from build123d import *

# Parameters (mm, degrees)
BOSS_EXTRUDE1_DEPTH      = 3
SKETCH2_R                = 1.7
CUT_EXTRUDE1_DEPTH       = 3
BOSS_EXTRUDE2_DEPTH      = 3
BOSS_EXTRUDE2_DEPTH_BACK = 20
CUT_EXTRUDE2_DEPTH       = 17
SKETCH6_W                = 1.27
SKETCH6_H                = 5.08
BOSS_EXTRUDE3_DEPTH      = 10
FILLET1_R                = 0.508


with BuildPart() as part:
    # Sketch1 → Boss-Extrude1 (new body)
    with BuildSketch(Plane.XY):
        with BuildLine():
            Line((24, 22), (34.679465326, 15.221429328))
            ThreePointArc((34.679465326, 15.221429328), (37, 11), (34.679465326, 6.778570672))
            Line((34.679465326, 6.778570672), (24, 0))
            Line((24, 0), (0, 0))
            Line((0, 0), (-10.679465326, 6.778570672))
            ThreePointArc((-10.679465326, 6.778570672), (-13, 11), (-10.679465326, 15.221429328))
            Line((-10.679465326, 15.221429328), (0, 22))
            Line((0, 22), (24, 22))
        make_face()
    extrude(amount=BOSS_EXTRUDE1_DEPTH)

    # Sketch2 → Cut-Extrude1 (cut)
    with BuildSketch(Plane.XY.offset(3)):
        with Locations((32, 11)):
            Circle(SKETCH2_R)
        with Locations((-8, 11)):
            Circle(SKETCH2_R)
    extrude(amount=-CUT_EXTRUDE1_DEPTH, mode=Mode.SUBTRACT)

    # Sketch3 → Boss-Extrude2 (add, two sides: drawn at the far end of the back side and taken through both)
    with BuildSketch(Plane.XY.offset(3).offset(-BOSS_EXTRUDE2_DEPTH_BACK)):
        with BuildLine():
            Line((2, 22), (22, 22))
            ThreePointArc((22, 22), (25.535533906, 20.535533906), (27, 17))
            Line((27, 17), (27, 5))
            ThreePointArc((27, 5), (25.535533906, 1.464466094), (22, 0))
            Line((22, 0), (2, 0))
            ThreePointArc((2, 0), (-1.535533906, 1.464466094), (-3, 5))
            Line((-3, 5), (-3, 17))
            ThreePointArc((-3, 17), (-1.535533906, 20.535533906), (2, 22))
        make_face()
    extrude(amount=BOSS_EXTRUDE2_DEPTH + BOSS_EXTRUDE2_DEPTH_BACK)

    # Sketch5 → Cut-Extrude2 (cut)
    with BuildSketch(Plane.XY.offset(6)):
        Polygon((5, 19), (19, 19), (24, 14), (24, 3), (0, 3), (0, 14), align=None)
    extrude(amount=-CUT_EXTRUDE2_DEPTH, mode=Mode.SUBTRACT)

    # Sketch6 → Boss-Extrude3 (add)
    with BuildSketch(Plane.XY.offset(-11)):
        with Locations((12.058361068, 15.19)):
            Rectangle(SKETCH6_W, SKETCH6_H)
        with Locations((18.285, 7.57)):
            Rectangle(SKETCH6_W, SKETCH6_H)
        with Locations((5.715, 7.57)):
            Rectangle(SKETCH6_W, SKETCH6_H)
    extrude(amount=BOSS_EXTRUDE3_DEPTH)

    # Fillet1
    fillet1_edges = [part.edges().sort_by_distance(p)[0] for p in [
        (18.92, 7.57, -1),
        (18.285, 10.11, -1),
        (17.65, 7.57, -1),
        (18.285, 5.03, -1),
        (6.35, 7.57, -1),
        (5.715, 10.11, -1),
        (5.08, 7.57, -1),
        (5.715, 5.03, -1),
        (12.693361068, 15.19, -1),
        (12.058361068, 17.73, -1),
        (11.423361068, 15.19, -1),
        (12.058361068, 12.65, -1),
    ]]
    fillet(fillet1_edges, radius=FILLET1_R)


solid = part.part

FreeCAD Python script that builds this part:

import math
import FreeCAD as App
import Part
import Sketcher

V = App.Vector
Q = App.Units.Quantity


def edges_at(feature, points):
    """Names of the edges that pass closest to the given points."""
    edges = feature.Shape.Edges
    near = lambda p: min(range(len(edges)), key=lambda i: edges[i].distToShape(Part.Vertex(*p))[0])
    return sorted({f"Edge{near(p) + 1}" for p in points})


def add_polygon(sketch, points):
    """Adds a closed chain of lines whose ends are joined by coincident constraints."""
    first, n = sketch.GeometryCount, len(points)
    for a, b in zip(points, points[1:] + points[:1]):
        sketch.addGeometry(Part.LineSegment(App.Vector(*a, 0), App.Vector(*b, 0)), False)
    for i in range(n):
        sketch.addConstraint(Sketcher.Constraint("Coincident", first + i, 2, first + (i + 1) % n, 1))

doc = App.newDocument("Part")
params = doc.addObject("Spreadsheet::Sheet", "Params")
for row, (alias, value) in enumerate([
    ("sketch1_radius", "5 mm"),
    ("sketch1_width", "24 mm"),
    ("pad1_length", "3 mm"),
    ("sketch2_diameter", "3.4 mm"),
    ("pocket1_length", "3 mm"),
    ("sketch3_radius", "5 mm"),
    ("sketch3_width", "20 mm"),
    ("sketch3_height", "12 mm"),
    ("pad2_length", "3 mm"),
    ("pad2_length2", "20 mm"),
    ("sketch4_width", "14 mm"),
    ("sketch4_width2", "24 mm"),
    ("sketch4_height", "11 mm"),
    ("pocket2_length", "17 mm"),
    ("sketch5_width", "1.27 mm"),
    ("sketch5_height", "5.08 mm"),
    ("pad3_length", "10 mm"),
    ("fillet_radius", "0.508 mm"),
], start=1):
    params.set(f"A{row}", alias)
    params.set(f"B{row}", "=" + value)
    params.setAlias(f"B{row}", alias)

body = doc.addObject("PartDesign::Body", "Body")

# Sketch on XY plane
sketch1 = doc.addObject("Sketcher::SketchObject", "Sketch")
body.addObject(sketch1)
sketch1.AttachmentSupport = (doc.XY_Plane, [""])
sketch1.MapMode = "FlatFace"
sketch1.addGeometry(Part.LineSegment(V(35, 15, 0), V(24, 22, 0)), False)
sketch1.addGeometry(Part.LineSegment(V(24, 22, 0), V(0, 22, 0)), False)
sketch1.addGeometry(Part.LineSegment(V(0, 22, 0), V(-11, 15, 0)), False)
sketch1.addGeometry(Part.ArcOfCircle(Part.Circle(V(-8, 11, 0), V(0, 0, 1), 5), math.radians(122), math.radians(238)), False)
sketch1.addGeometry(Part.LineSegment(V(-11, 7, 0), V(0, 0, 0)), False)
sketch1.addGeometry(Part.LineSegment(V(0, 0, 0), V(24, 0, 0)), False)
sketch1.addGeometry(Part.LineSegment(V(24, 0, 0), V(35, 7, 0)), False)
sketch1.addGeometry(Part.ArcOfCircle(Part.Circle(V(32, 11, 0), V(0, 0, 1), 5), math.radians(-58), math.radians(58)), False)
sketch1.addConstraint(Sketcher.Constraint("Coincident", 0, 2, 1, 1))
sketch1.addConstraint(Sketcher.Constraint("Coincident", 1, 2, 2, 1))
sketch1.addConstraint(Sketcher.Constraint("Tangent", 2, 2, 3, 1))
sketch1.addConstraint(Sketcher.Constraint("Tangent", 3, 2, 4, 1))
sketch1.addConstraint(Sketcher.Constraint("Coincident", 4, 2, 5, 1))
sketch1.addConstraint(Sketcher.Constraint("Coincident", 5, 2, 6, 1))
sketch1.addConstraint(Sketcher.Constraint("Tangent", 6, 2, 7, 1))
sketch1.addConstraint(Sketcher.Constraint("Tangent", 7, 2, 0, 1))
sketch1.addConstraint(Sketcher.Constraint("Horizontal", 1))
sketch1.addConstraint(Sketcher.Constraint("Horizontal", 5))
sketch1.addConstraint(Sketcher.Constraint("Coincident", 4, 2, -1, 1))
sketch1.addConstraint(Sketcher.Constraint("Equal", 3, 7))
sketch1.addConstraint(Sketcher.Constraint("PointOnObject", 1, 2, -2))
sketch1.addConstraint(Sketcher.Constraint("Parallel", 0, 4))
sketch1.addConstraint(Sketcher.Constraint("Parallel", 2, 6))
sketch1.addConstraint(Sketcher.Constraint("Horizontal", 3, 3, 7, 3))
sketch1.addConstraint(Sketcher.Constraint("Horizontal", 3, 2, 6, 2))
sketch1.addConstraint(Sketcher.Constraint("Radius", 3, Q("5 mm")))
sketch1.addConstraint(Sketcher.Constraint("DistanceX", 1, 2, 1, 1, Q("24 mm")))
sketch1.addConstraint(Sketcher.Constraint("DistanceX", 3, 3, -1, 1, Q("8 mm")))
sketch1.addConstraint(Sketcher.Constraint("DistanceY", -1, 1, 3, 3, Q("11 mm")))
sketch1.setExpression("Constraints[17]", "Params.sketch1_radius")
sketch1.setExpression("Constraints[18]", "Params.sketch1_width")
pad1 = doc.addObject("PartDesign::Pad", "Pad")
body.addObject(pad1)
pad1.Profile = sketch1
pad1.setExpression("Length", "Params.pad1_length")

# Sketch on XY plane
sketch2 = doc.addObject("Sketcher::SketchObject", "Sketch001")
body.addObject(sketch2)
sketch2.AttachmentSupport = (doc.XY_Plane, [""])
sketch2.MapMode = "FlatFace"
sketch2.AttachmentOffset = App.Placement(V(0, 0, 3), App.Rotation())
sketch2.addGeometry(Part.Circle(V(32, 11, 0), V(0, 0, 1), 1.7), False)
sketch2.addGeometry(Part.Circle(V(-8, 11, 0), V(0, 0, 1), 1.7), False)
sketch2.addConstraint(Sketcher.Constraint("Equal", 0, 1))
sketch2.addConstraint(Sketcher.Constraint("Horizontal", 0, 3, 1, 3))
sketch2.addConstraint(Sketcher.Constraint("Diameter", 0, Q("3.4 mm")))
sketch2.addConstraint(Sketcher.Constraint("DistanceX", -1, 1, 0, 3, Q("32 mm")))
sketch2.addConstraint(Sketcher.Constraint("DistanceY", -1, 1, 0, 3, Q("11 mm")))
sketch2.addConstraint(Sketcher.Constraint("DistanceX", 1, 3, -1, 1, Q("8 mm")))
sketch2.setExpression("Constraints[2]", "Params.sketch2_diameter")
pocket1 = doc.addObject("PartDesign::Pocket", "Pocket")
body.addObject(pocket1)
pocket1.Profile = sketch2
pocket1.setExpression("Length", "Params.pocket1_length")

# Sketch on XY plane
sketch3 = doc.addObject("Sketcher::SketchObject", "Sketch002")
body.addObject(sketch3)
sketch3.AttachmentSupport = (doc.XY_Plane, [""])
sketch3.MapMode = "FlatFace"
sketch3.AttachmentOffset = App.Placement(V(0, 0, 3), App.Rotation())
sketch3.addGeometry(Part.LineSegment(V(22, 22, 0), V(2, 22, 0)), False)
sketch3.addGeometry(Part.ArcOfCircle(Part.Circle(V(2, 17, 0), V(0, 0, 1), 5), math.radians(90), math.radians(180)), False)
sketch3.addGeometry(Part.LineSegment(V(-3, 17, 0), V(-3, 5, 0)), False)
sketch3.addGeometry(Part.ArcOfCircle(Part.Circle(V(2, 5, 0), V(0, 0, 1), 5), math.radians(180), math.radians(270)), False)
sketch3.addGeometry(Part.LineSegment(V(2, 0, 0), V(22, 0, 0)), False)
sketch3.addGeometry(Part.ArcOfCircle(Part.Circle(V(22, 5, 0), V(0, 0, 1), 5), math.radians(-90), math.radians(0)), False)
sketch3.addGeometry(Part.LineSegment(V(27, 5, 0), V(27, 17, 0)), False)
sketch3.addGeometry(Part.ArcOfCircle(Part.Circle(V(22, 17, 0), V(0, 0, 1), 5), math.radians(0), math.radians(90)), False)
sketch3.addConstraint(Sketcher.Constraint("Tangent", 0, 2, 1, 1))
sketch3.addConstraint(Sketcher.Constraint("Tangent", 1, 2, 2, 1))
sketch3.addConstraint(Sketcher.Constraint("Tangent", 2, 2, 3, 1))
sketch3.addConstraint(Sketcher.Constraint("Tangent", 3, 2, 4, 1))
sketch3.addConstraint(Sketcher.Constraint("Tangent", 4, 2, 5, 1))
sketch3.addConstraint(Sketcher.Constraint("Tangent", 5, 2, 6, 1))
sketch3.addConstraint(Sketcher.Constraint("Tangent", 6, 2, 7, 1))
sketch3.addConstraint(Sketcher.Constraint("Tangent", 7, 2, 0, 1))
sketch3.addConstraint(Sketcher.Constraint("Horizontal", 0))
sketch3.addConstraint(Sketcher.Constraint("Vertical", 2))
sketch3.addConstraint(Sketcher.Constraint("Horizontal", 4))
sketch3.addConstraint(Sketcher.Constraint("Vertical", 6))
sketch3.addConstraint(Sketcher.Constraint("Equal", 1, 3))
sketch3.addConstraint(Sketcher.Constraint("Equal", 3, 5))
sketch3.addConstraint(Sketcher.Constraint("Equal", 5, 7))
sketch3.addConstraint(Sketcher.Constraint("PointOnObject", 3, 2, -1))
sketch3.addConstraint(Sketcher.Constraint("Radius", 1, Q("5 mm")))
sketch3.addConstraint(Sketcher.Constraint("DistanceX", 0, 2, 0, 1, Q("20 mm")))
sketch3.addConstraint(Sketcher.Constraint("DistanceY", 2, 2, 2, 1, Q("12 mm")))
sketch3.addConstraint(Sketcher.Constraint("DistanceX", -1, 1, 1, 3, Q("2 mm")))
sketch3.setExpression("Constraints[16]", "Params.sketch3_radius")
sketch3.setExpression("Constraints[17]", "Params.sketch3_width")
sketch3.setExpression("Constraints[18]", "Params.sketch3_height")
pad2 = doc.addObject("PartDesign::Pad", "Pad001")
body.addObject(pad2)
pad2.Profile = sketch3
pad2.Type = "TwoLengths"
pad2.setExpression("Length", "Params.pad2_length")
pad2.setExpression("Length2", "Params.pad2_length2")

# Sketch on XY plane
sketch4 = doc.addObject("Sketcher::SketchObject", "Sketch003")
body.addObject(sketch4)
sketch4.AttachmentSupport = (doc.XY_Plane, [""])
sketch4.MapMode = "FlatFace"
sketch4.AttachmentOffset = App.Placement(V(0, 0, 6), App.Rotation())
add_polygon(sketch4, [(19, 19), (5, 19), (0, 14), (0, 3), (24, 3), (24, 14)])  # lines 0-5
sketch4.addConstraint(Sketcher.Constraint("Horizontal", 0))
sketch4.addConstraint(Sketcher.Constraint("Vertical", 2))
sketch4.addConstraint(Sketcher.Constraint("Horizontal", 3))
sketch4.addConstraint(Sketcher.Constraint("Vertical", 4))
sketch4.addConstraint(Sketcher.Constraint("PointOnObject", 1, 2, -2))
sketch4.addConstraint(Sketcher.Constraint("Perpendicular", 1, 5))
sketch4.addConstraint(Sketcher.Constraint("Horizontal", 1, 2, 4, 2))
sketch4.addConstraint(Sketcher.Constraint("Equal", 1, 5))
sketch4.addConstraint(Sketcher.Constraint("DistanceX", 0, 2, 0, 1, Q("14 mm")))
sketch4.addConstraint(Sketcher.Constraint("DistanceX", 3, 1, 3, 2, Q("24 mm")))
sketch4.addConstraint(Sketcher.Constraint("DistanceY", 2, 2, 2, 1, Q("11 mm")))
sketch4.addConstraint(Sketcher.Constraint("DistanceY", -1, 1, 0, 2, Q("19 mm")))
sketch4.setExpression("Constraints[14]", "Params.sketch4_width")
sketch4.setExpression("Constraints[15]", "Params.sketch4_width2")
sketch4.setExpression("Constraints[16]", "Params.sketch4_height")
pocket2 = doc.addObject("PartDesign::Pocket", "Pocket001")
body.addObject(pocket2)
pocket2.Profile = sketch4
pocket2.setExpression("Length", "Params.pocket2_length")

# Sketch on XY plane
sketch5 = doc.addObject("Sketcher::SketchObject", "Sketch004")
body.addObject(sketch5)
sketch5.AttachmentSupport = (doc.XY_Plane, [""])
sketch5.MapMode = "FlatFace"
sketch5.AttachmentOffset = App.Placement(V(0, 0, -11), App.Rotation())
add_polygon(sketch5, [(11.4, 17.7), (11.4, 12.7), (12.7, 12.7), (12.7, 17.7)])  # lines 0-3
add_polygon(sketch5, [(17.6, 10.1), (17.6, 5), (18.9, 5), (18.9, 10.1)])  # lines 4-7
add_polygon(sketch5, [(5.1, 10.1), (5.1, 5), (6.3, 5), (6.3, 10.1)])  # lines 8-11
sketch5.addConstraint(Sketcher.Constraint("Vertical", 0))
sketch5.addConstraint(Sketcher.Constraint("Horizontal", 1))
sketch5.addConstraint(Sketcher.Constraint("Vertical", 2))
sketch5.addConstraint(Sketcher.Constraint("Horizontal", 3))
sketch5.addConstraint(Sketcher.Constraint("Vertical", 4))
sketch5.addConstraint(Sketcher.Constraint("Horizontal", 5))
sketch5.addConstraint(Sketcher.Constraint("Vertical", 6))
sketch5.addConstraint(Sketcher.Constraint("Horizontal", 7))
sketch5.addConstraint(Sketcher.Constraint("Vertical", 8))
sketch5.addConstraint(Sketcher.Constraint("Horizontal", 9))
sketch5.addConstraint(Sketcher.Constraint("Vertical", 10))
sketch5.addConstraint(Sketcher.Constraint("Horizontal", 11))
sketch5.addConstraint(Sketcher.Constraint("Horizontal", 5, 2, 8, 2))
sketch5.addConstraint(Sketcher.Constraint("Horizontal", 7, 2, 10, 2))
sketch5.addConstraint(Sketcher.Constraint("Equal", 3, 5))
sketch5.addConstraint(Sketcher.Constraint("Equal", 7, 9))
sketch5.addConstraint(Sketcher.Constraint("Equal", 2, 4))
sketch5.addConstraint(Sketcher.Constraint("DistanceX", 1, 1, 1, 2, Q("1.27 mm")))
sketch5.addConstraint(Sketcher.Constraint("DistanceY", 0, 2, 0, 1, Q("5.08 mm")))
sketch5.addConstraint(Sketcher.Constraint("DistanceY", 4, 2, 2, 2, Q("12.7 mm")))
sketch5.addConstraint(Sketcher.Constraint("DistanceX", 9, 2, 4, 2, Q("11.3 mm")))
sketch5.addConstraint(Sketcher.Constraint("DistanceY", -1, 1, 0, 2, Q("12.65 mm")))
sketch5.addConstraint(Sketcher.Constraint("DistanceX", -1, 1, 4, 2, Q("17.65 mm")))
sketch5.addConstraint(Sketcher.Constraint("DistanceX", -1, 1, 0, 2, Q("11.423361 mm")))
sketch5.setExpression("Constraints[29]", "Params.sketch5_width")
sketch5.setExpression("Constraints[30]", "Params.sketch5_height")
pad3 = doc.addObject("PartDesign::Pad", "Pad002")
body.addObject(pad3)
pad3.Profile = sketch5
pad3.setExpression("Length", "Params.pad3_length")
doc.recompute()

fillet = doc.addObject("PartDesign::Fillet", "Fillet")
body.addObject(fillet)
fillet.Base = (pad3, edges_at(pad3, [
    (18.92, 7.57, -1),
    (18.285, 10.11, -1),
    (17.65, 7.57, -1),
    (18.285, 5.03, -1),
    (6.35, 7.57, -1),
    (5.715, 10.11, -1),
    (5.08, 7.57, -1),
    (5.715, 5.03, -1),
    (12.693, 15.19, -1),
    (12.058, 17.73, -1),
    (11.423, 15.19, -1),
    (12.058, 12.65, -1),
]))
fillet.setExpression("Radius", "Params.fillet_radius")

doc.recompute()
